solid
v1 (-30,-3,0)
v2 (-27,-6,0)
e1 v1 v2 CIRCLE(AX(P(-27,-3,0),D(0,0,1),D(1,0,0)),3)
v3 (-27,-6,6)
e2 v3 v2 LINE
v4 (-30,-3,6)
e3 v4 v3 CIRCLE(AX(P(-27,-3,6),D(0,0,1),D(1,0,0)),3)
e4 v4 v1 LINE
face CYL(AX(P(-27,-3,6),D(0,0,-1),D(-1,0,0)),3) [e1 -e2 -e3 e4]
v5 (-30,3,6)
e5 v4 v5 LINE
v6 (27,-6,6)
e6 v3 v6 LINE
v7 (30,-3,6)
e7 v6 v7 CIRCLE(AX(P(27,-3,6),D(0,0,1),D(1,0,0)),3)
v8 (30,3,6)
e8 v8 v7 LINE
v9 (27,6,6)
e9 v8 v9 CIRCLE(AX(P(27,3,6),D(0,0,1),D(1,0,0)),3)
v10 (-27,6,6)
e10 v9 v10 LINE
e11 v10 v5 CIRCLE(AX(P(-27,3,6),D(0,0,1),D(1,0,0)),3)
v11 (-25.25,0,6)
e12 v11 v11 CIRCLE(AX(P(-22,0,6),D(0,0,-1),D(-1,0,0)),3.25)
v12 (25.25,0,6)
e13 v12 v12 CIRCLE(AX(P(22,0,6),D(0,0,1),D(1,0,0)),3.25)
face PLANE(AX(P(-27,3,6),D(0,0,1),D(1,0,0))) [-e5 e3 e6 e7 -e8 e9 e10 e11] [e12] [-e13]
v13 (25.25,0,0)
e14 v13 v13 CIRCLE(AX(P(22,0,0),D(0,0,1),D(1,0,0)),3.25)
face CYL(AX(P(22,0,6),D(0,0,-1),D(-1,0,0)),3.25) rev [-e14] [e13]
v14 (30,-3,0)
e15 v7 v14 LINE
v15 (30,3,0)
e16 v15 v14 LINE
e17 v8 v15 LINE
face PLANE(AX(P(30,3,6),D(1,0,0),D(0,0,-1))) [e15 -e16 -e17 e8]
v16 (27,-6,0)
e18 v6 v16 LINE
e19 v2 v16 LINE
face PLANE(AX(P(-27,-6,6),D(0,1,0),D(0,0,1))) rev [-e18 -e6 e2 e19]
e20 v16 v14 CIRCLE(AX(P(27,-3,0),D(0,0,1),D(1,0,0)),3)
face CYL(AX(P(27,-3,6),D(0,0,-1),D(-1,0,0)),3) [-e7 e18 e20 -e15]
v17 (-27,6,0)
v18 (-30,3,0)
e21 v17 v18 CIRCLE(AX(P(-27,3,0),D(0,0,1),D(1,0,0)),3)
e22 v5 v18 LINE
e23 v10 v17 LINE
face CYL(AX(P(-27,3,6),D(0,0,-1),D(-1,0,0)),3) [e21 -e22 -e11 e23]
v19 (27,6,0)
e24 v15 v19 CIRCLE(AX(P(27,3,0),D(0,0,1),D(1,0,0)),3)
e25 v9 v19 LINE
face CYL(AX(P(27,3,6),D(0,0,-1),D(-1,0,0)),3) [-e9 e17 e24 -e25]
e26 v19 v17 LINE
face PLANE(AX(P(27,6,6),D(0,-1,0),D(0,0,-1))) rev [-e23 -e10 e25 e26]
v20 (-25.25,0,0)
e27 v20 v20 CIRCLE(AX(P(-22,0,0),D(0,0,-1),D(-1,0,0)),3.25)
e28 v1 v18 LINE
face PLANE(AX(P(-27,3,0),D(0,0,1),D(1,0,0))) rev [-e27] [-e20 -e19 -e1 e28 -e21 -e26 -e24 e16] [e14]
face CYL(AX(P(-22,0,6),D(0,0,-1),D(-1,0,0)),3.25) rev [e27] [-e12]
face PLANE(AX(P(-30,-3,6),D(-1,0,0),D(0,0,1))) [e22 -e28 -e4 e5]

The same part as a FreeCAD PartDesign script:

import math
import FreeCAD as App
import Part
import Sketcher
from FreeCAD import Vector
Q = App.Units.Quantity

doc = App.newDocument("Part")
body = doc.addObject("PartDesign::Body", "Body")

sketch1 = body.newObject("Sketcher::SketchObject", "Sketch")
sketch1.AttachmentSupport = (doc.getObject("XY_Plane"), [""])
sketch1.MapMode = "FlatFace"
sketch1.addGeometry([
    Part.LineSegment(Vector(-27, -6, 0), Vector(27, -6, 0)),
    Part.ArcOfCircle(Part.Circle(Vector(27, -3, 0), Vector(0, 0, 1), 3), math.radians(-90), math.radians(0)),
    Part.LineSegment(Vector(30, -3, 0), Vector(30, 3, 0)),
    Part.ArcOfCircle(Part.Circle(Vector(27, 3, 0), Vector(0, 0, 1), 3), math.radians(0), math.radians(90)),
    Part.LineSegment(Vector(27, 6, 0), Vector(-27, 6, 0)),
    Part.ArcOfCircle(Part.Circle(Vector(-27, 3, 0), Vector(0, 0, 1), 3), math.radians(90), math.radians(180)),
    Part.LineSegment(Vector(-30, 3, 0), Vector(-30, -3, 0)),
    Part.ArcOfCircle(Part.Circle(Vector(-27, -3, 0), Vector(0, 0, 1), 3), math.radians(180), math.radians(270)),
    Part.Circle(Vector(-22, 0, 0), Vector(0, 0, 1), 3.2),
    Part.Circle(Vector(22, 0, 0), Vector(0, 0, 1), 3.2),
], False)
sketch1.addConstraint([
    Sketcher.Constraint("Tangent", 0, 2, 1, 1),
    Sketcher.Constraint("Tangent", 1, 2, 2, 1),
    Sketcher.Constraint("Tangent", 2, 2, 3, 1),
    Sketcher.Constraint("Tangent", 3, 2, 4, 1),
    Sketcher.Constraint("Tangent", 4, 2, 5, 1),
    Sketcher.Constraint("Tangent", 5, 2, 6, 1),
    Sketcher.Constraint("Tangent", 6, 2, 7, 1),
    Sketcher.Constraint("Tangent", 7, 2, 0, 1),
    Sketcher.Constraint("Horizontal", 0),
    Sketcher.Constraint("Vertical", 2),
    Sketcher.Constraint("Horizontal", 4),
    Sketcher.Constraint("Vertical", 6),
    Sketcher.Constraint("Equal", 1, 3),
    Sketcher.Constraint("Equal", 3, 5),
    Sketcher.Constraint("Equal", 5, 7),
    Sketcher.Constraint("Equal", 8, 9),
    Sketcher.Constraint("Symmetric", 1, 3, 5, 3, -1, 1),
    Sketcher.Constraint("Symmetric", 8, 3, 9, 3, -1, 1),
    Sketcher.Constraint("PointOnObject", 8, 3, -1),
    Sketcher.Constraint("Radius", 1, Q("3 mm")),
    Sketcher.Constraint("Diameter", 8, Q("6.5 mm")),
    Sketcher.Constraint("DistanceX", 0, 1, 0, 2, Q("54 mm")),
    Sketcher.Constraint("DistanceY", 2, 1, 2, 2, Q("6 mm")),
    Sketcher.Constraint("DistanceX", 8, 3, -1, 1, Q("22 mm")),
])
pad1 = body.newObject("PartDesign::Pad", "Pad")
pad1.Profile = sketch1
pad1.Length = 6

doc.recompute()
